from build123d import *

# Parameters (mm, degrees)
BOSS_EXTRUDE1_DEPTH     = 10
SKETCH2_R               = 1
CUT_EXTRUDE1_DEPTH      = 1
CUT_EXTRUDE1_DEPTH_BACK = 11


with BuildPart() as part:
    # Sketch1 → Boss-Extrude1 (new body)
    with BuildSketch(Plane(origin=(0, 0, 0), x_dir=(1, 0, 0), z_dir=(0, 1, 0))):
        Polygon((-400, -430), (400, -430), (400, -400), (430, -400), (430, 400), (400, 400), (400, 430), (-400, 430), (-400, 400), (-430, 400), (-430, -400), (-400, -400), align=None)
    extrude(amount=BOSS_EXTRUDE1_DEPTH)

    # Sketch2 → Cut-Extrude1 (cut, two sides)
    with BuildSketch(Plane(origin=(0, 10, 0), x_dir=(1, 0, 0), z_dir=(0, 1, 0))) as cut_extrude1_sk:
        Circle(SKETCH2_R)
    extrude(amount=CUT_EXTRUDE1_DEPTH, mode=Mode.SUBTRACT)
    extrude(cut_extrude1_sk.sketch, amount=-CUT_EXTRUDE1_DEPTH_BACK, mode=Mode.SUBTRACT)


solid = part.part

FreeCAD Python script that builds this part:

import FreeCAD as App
import Part
import Sketcher

V = App.Vector
Q = App.Units.Quantity


def add_polygon(sketch, points):
    """Adds a closed chain of lines whose ends are joined by coincident constraints."""
    first, n = sketch.GeometryCount, len(points)
    for a, b in zip(points, points[1:] + points[:1]):
        sketch.addGeometry(Part.LineSegment(App.Vector(*a, 0), App.Vector(*b, 0)), False)
    for i in range(n):
        sketch.addConstraint(Sketcher.Constraint("Coincident", first + i, 2, first + (i + 1) % n, 1))

doc = App.newDocument("Part")
body = doc.addObject("PartDesign::Body", "Body")

sketch1 = doc.addObject("Sketcher::SketchObject", "Sketch")
body.addObject(sketch1)
sketch1.AttachmentSupport = (doc.XZ_Plane, [""])
sketch1.MapMode = "FlatFace"
add_polygon(sketch1, [(-400, 430), (400, 430), (400, 400), (430, 400), (430, -400), (400, -400), (400, -430), (-400, -430), (-400, -400), (-430, -400), (-430, 400), (-400, 400)])
sketch1.addConstraint([
    Sketcher.Constraint("Horizontal", 0),
    Sketcher.Constraint("Vertical", 1),
    Sketcher.Constraint("Horizontal", 2),
    Sketcher.Constraint("Vertical", 3),
    Sketcher.Constraint("Horizontal", 4),
    Sketcher.Constraint("Vertical", 5),
    Sketcher.Constraint("Horizontal", 6),
    Sketcher.Constraint("Vertical", 7),
    Sketcher.Constraint("Horizontal", 8),
    Sketcher.Constraint("Vertical", 9),
    Sketcher.Constraint("Horizontal", 10),
    Sketcher.Constraint("Vertical", 11),
    Sketcher.Constraint("Symmetric", 0, 2, 6, 2, -1, 1),
    Sketcher.Constraint("Symmetric", 2, 2, 8, 2, -1, 1),
    Sketcher.Constraint("Symmetric", 4, 2, 10, 2, -1, 1),
    Sketcher.Constraint("Symmetric", 4, 2, 7, 2, -2),
    Sketcher.Constraint("Equal", 10, 1),
    Sketcher.Constraint("Equal", 6, 3),
    Sketcher.Constraint("DistanceX", 0, 1, 0, 2, Q("800 mm")),
    Sketcher.Constraint("DistanceX", 2, 1, 2, 2, Q("30 mm")),
])
pad1 = doc.addObject("PartDesign::Pad", "Pad")
body.addObject(pad1)
pad1.Profile = sketch1
pad1.Length = 10
pad1.Reversed = True

sketch2 = doc.addObject("Sketcher::SketchObject", "Sketch001")
body.addObject(sketch2)
sketch2.AttachmentSupport = (doc.XZ_Plane, [""])
sketch2.MapMode = "FlatFace"
sketch2.AttachmentOffset = App.Placement(V(0, 0, -10), App.Rotation())
sketch2.addGeometry(Part.Circle(V(0, 0, 0), V(0, 0, 1), 1), False)
sketch2.addConstraint([
    Sketcher.Constraint("Coincident", 0, 3, -1, 1),
    Sketcher.Constraint("Diameter", 0, Q("2 mm")),
])
pocket1 = doc.addObject("PartDesign::Pocket", "Pocket")
body.addObject(pocket1)
pocket1.Profile = sketch2
pocket1.Type = "ThroughAll"
pocket1.Midplane = True

doc.recompute()
